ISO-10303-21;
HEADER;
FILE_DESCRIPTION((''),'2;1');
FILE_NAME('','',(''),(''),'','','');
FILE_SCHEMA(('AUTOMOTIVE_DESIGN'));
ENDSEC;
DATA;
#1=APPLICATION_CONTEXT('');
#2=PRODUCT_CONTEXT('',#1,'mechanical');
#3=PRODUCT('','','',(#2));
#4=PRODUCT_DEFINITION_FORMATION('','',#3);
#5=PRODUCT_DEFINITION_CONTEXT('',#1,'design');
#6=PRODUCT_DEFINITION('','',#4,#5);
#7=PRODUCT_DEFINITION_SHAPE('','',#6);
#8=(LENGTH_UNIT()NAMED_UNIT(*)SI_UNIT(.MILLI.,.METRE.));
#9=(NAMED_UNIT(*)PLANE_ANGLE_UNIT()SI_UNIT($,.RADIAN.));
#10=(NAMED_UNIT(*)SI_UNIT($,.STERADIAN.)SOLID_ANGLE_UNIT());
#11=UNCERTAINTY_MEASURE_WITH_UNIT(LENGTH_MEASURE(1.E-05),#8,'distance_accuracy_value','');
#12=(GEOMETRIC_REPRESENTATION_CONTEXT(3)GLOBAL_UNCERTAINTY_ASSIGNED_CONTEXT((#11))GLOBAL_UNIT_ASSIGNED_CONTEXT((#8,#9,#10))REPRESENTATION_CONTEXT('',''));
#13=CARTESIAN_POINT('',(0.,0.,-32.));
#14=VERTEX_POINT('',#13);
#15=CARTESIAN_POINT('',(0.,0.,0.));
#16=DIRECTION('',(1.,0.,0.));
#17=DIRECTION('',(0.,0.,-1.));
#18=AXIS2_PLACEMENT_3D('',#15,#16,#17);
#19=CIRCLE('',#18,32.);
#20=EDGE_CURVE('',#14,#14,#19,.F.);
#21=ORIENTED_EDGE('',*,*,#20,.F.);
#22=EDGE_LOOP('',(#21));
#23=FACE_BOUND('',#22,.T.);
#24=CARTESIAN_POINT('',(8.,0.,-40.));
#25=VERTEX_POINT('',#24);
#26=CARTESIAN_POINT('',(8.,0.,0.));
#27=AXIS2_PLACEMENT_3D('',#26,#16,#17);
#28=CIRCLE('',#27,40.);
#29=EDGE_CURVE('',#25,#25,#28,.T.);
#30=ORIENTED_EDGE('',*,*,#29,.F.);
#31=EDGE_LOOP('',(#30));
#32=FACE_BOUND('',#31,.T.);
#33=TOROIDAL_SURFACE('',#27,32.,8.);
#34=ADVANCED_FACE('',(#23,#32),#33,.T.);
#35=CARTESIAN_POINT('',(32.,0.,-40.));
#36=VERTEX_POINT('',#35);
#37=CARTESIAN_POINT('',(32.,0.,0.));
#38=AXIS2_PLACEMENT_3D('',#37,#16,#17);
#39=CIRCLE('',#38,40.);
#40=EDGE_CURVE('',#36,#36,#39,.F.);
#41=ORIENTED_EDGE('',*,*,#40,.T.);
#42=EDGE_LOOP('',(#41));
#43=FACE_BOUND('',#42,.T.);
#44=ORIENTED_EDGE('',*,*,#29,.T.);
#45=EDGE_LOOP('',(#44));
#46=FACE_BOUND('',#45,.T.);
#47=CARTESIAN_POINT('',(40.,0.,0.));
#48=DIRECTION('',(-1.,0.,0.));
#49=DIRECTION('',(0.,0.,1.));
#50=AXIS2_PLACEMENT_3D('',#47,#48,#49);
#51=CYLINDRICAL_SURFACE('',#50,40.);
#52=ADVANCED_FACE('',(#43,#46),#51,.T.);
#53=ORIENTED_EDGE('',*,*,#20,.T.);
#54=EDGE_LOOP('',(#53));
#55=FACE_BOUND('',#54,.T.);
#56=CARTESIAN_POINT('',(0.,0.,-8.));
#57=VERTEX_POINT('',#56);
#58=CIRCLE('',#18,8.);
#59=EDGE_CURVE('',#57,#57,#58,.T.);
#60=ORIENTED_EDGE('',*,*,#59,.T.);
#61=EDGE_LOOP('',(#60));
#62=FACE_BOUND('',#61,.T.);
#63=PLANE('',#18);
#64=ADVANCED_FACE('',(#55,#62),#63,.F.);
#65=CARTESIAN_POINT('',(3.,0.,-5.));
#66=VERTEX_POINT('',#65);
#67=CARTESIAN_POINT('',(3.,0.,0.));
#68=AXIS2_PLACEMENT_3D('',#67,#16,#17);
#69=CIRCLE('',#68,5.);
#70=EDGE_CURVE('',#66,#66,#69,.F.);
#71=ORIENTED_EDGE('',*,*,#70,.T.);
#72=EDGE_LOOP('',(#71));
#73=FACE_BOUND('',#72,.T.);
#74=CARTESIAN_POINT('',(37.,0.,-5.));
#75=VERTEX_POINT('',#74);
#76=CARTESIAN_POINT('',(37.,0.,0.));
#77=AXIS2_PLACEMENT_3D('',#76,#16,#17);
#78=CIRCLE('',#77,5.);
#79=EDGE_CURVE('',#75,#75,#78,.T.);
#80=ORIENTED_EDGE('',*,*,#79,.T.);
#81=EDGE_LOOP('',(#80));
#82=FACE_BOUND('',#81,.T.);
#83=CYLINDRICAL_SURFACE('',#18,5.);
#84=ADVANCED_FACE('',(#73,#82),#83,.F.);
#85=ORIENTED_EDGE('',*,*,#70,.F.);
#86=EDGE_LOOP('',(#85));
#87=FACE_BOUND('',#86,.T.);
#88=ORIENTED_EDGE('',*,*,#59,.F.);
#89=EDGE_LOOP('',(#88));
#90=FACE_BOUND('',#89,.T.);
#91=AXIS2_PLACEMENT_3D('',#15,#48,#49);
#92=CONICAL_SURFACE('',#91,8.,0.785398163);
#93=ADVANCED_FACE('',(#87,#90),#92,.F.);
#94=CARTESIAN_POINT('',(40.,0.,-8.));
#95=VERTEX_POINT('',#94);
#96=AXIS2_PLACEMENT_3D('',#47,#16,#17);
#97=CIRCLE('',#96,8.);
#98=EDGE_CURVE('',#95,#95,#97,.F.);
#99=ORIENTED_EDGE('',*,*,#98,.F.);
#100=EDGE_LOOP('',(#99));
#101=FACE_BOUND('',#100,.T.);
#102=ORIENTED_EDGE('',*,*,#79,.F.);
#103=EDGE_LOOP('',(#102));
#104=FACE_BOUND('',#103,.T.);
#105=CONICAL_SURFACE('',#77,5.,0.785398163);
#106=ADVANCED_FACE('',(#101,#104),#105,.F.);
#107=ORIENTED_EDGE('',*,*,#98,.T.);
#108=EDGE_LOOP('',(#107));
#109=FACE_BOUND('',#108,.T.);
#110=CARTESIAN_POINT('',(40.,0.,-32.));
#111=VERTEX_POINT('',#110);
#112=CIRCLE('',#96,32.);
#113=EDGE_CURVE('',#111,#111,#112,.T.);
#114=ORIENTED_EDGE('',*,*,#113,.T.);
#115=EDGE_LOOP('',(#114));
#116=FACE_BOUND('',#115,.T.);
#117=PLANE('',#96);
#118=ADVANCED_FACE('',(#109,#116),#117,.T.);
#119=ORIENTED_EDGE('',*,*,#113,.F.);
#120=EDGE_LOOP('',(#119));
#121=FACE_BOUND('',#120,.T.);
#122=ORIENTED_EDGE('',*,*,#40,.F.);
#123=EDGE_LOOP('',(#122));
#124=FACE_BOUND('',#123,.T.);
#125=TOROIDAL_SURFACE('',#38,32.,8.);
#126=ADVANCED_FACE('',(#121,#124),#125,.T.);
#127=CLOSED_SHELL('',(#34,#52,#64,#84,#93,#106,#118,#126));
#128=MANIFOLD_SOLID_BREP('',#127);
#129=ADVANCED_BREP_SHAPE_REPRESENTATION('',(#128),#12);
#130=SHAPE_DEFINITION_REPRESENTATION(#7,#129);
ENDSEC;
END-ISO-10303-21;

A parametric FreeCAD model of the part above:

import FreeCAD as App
import Part
import Sketcher
from FreeCAD import Vector


def edges_at(feature, points):
    """Names of the edges that pass closest to the given points."""
    edges = feature.Shape.Edges
    near = lambda p: min(range(len(edges)), key=lambda i: edges[i].distToShape(Part.Vertex(*p))[0])
    return sorted({f"Edge{near(p) + 1}" for p in points})

doc = App.newDocument("Part")
body = doc.addObject("PartDesign::Body", "Body")

sketch1 = body.newObject("Sketcher::SketchObject", "Sketch")
sketch1.AttachmentSupport = (doc.getObject("YZ_Plane"), [""])
sketch1.MapMode = "FlatFace"
sketch1.addGeometry(Part.Circle(Vector(0, 0, 0), Vector(0, 0, 1), 40), False)
sketch1.addConstraint([
    Sketcher.Constraint("Coincident", 0, 3, -1, 1),
    Sketcher.Constraint("Diameter", 0, 80.0),
])
pad1 = body.newObject("PartDesign::Pad", "Pad")
pad1.Profile = sketch1
pad1.Length = 40
doc.recompute()

fillet = body.newObject("PartDesign::Fillet", "Fillet")
fillet.Base = (pad1, edges_at(pad1, [(0, 0, 40), (40, 0, 40)]))
fillet.Radius = 8

sketch2 = body.newObject("Sketcher::SketchObject", "Sketch001")
sketch2.AttachmentSupport = (doc.getObject("YZ_Plane"), [""])
sketch2.MapMode = "FlatFace"
sketch2.AttachmentOffset = App.Placement(Vector(0, 0, 40), App.Rotation())
sketch2.addGeometry(Part.Circle(Vector(0, 0, 0), Vector(0, 0, 1), 5), False)
sketch2.addConstraint([
    Sketcher.Constraint("Coincident", 0, 3, -1, 1),
    Sketcher.Constraint("Diameter", 0, 10.0),
])
pocket1 = body.newObject("PartDesign::Pocket", "Pocket")
pocket1.Profile = sketch2
pocket1.Type = "ThroughAll"
doc.recompute()

chamfer = body.newObject("PartDesign::Chamfer", "Chamfer")
chamfer.Base = (pocket1, edges_at(pocket1, [(0, 0, 5), (40, 0, 5)]))
chamfer.Size = 3

doc.recompute()
